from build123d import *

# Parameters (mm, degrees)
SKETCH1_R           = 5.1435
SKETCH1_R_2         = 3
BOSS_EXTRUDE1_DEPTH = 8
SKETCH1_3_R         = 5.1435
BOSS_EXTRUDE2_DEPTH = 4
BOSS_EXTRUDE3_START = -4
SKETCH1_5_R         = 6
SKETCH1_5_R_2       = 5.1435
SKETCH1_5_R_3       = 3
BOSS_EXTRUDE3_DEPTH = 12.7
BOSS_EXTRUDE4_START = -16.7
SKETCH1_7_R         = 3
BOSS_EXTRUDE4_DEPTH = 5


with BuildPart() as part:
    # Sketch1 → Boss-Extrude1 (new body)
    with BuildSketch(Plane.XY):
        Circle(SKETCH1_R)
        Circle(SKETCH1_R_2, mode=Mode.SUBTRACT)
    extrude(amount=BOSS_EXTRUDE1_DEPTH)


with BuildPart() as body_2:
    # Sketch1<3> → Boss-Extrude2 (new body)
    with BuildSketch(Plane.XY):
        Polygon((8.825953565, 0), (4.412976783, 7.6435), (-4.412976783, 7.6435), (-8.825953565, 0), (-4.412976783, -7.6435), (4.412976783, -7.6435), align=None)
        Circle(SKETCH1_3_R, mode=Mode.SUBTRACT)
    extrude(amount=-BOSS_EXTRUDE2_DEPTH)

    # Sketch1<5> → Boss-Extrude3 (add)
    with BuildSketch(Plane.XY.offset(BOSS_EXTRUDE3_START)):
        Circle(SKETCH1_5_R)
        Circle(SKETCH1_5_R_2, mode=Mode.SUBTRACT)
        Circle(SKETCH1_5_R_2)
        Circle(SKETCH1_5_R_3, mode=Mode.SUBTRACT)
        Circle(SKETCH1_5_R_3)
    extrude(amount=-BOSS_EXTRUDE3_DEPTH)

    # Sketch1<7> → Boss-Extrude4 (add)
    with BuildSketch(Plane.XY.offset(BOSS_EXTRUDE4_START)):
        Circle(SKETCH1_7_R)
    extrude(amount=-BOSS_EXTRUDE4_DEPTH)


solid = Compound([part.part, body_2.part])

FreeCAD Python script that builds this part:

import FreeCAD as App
import Part
import Sketcher
from FreeCAD import Vector
Q = App.Units.Quantity

doc = App.newDocument("Part")
body = doc.addObject("PartDesign::Body", "Body")

sketch1 = body.newObject("Sketcher::SketchObject", "Sketch")
sketch1.AttachmentSupport = (doc.getObject("XY_Plane"), [""])
sketch1.MapMode = "FlatFace"
sketch1.addGeometry([
    Part.Circle(Vector(0, 0, 0), Vector(0, 0, 1), 5.1),
    Part.Circle(Vector(0, 0, 0), Vector(0, 0, 1), 3),
], False)
sketch1.addConstraint([
    Sketcher.Constraint("Coincident", 0, 3, -1, 1),
    Sketcher.Constraint("Coincident", 1, 3, -1, 1),
    Sketcher.Constraint("Diameter", 1, 6.0),
    Sketcher.Constraint("Diameter", 0, 10.287),
])
pad1 = body.newObject("PartDesign::Pad", "Pad")
pad1.Profile = sketch1
pad1.Length = 8
body2 = doc.addObject("PartDesign::Body", "Body001")

sketch2 = body2.newObject("Sketcher::SketchObject", "Sketch001")
sketch2.AttachmentSupport = (doc.getObject("XY_Plane001"), [""])
sketch2.MapMode = "FlatFace"
sketch2.addGeometry([
    Part.LineSegment(Vector(9, 0, 0), Vector(4, 8, 0)),
    Part.LineSegment(Vector(4, 8, 0), Vector(-4, 8, 0)),
    Part.LineSegment(Vector(-4, 8, 0), Vector(-9, 0, 0)),
    Part.LineSegment(Vector(-9, 0, 0), Vector(-4, -8, 0)),
    Part.LineSegment(Vector(-4, -8, 0), Vector(4, -8, 0)),
    Part.LineSegment(Vector(4, -8, 0), Vector(9, 0, 0)),
    Part.Circle(Vector(0, 0, 0), Vector(0, 0, 1), 5),
], False)
sketch2.addConstraint([
    Sketcher.Constraint("Coincident", 0, 2, 1, 1),
    Sketcher.Constraint("Coincident", 1, 2, 2, 1),
    Sketcher.Constraint("Coincident", 2, 2, 3, 1),
    Sketcher.Constraint("Coincident", 3, 2, 4, 1),
    Sketcher.Constraint("Coincident", 4, 2, 5, 1),
    Sketcher.Constraint("Coincident", 5, 2, 0, 1),
    Sketcher.Constraint("Horizontal", 1),
    Sketcher.Constraint("Horizontal", 4),
    Sketcher.Constraint("Coincident", 6, 3, -1, 1),
    Sketcher.Constraint("Symmetric", 0, 2, 3, 2, -1, 1),
    Sketcher.Constraint("Symmetric", 2, 2, 5, 2, -1, 1),
    Sketcher.Constraint("PointOnObject", 2, 2, -1),
    Sketcher.Constraint("Parallel", 2, 5),
    Sketcher.Constraint("Vertical", 1, 2, 3, 2),
    Sketcher.Constraint("Angle", 0, Q("120 deg")),
    Sketcher.Constraint("Diameter", 6, 10.287),
    Sketcher.Constraint("DistanceY", 3, 2, 1, 2, 15.287),
    Sketcher.Constraint("DistanceX", 1, 2, 1, 1, 8.825954),
])
pad2 = body2.newObject("PartDesign::Pad", "Pad001")
pad2.Profile = sketch2
pad2.Length = 4
pad2.Reversed = True

sketch3 = body2.newObject("Sketcher::SketchObject", "Sketch002")
sketch3.AttachmentSupport = (doc.getObject("XY_Plane001"), [""])
sketch3.MapMode = "FlatFace"
sketch3.AttachmentOffset = App.Placement(Vector(0, 0, -4), App.Rotation())
sketch3.addGeometry(Part.Circle(Vector(0, 0, 0), Vector(0, 0, 1), 6), False)
sketch3.addConstraint([
    Sketcher.Constraint("Coincident", 0, 3, -1, 1),
    Sketcher.Constraint("Diameter", 0, 12.0),
])
pad3 = body2.newObject("PartDesign::Pad", "Pad002")
pad3.Profile = sketch3
pad3.Length = 12.7
pad3.Reversed = True

sketch4 = body2.newObject("Sketcher::SketchObject", "Sketch003")
sketch4.AttachmentSupport = (doc.getObject("XY_Plane001"), [""])
sketch4.MapMode = "FlatFace"
sketch4.AttachmentOffset = App.Placement(Vector(0, 0, -16.7), App.Rotation())
sketch4.addGeometry(Part.Circle(Vector(0, 0, 0), Vector(0, 0, 1), 3), False)
sketch4.addConstraint([
    Sketcher.Constraint("Coincident", 0, 3, -1, 1),
    Sketcher.Constraint("Diameter", 0, 6.0),
])
pad4 = body2.newObject("PartDesign::Pad", "Pad003")
pad4.Profile = sketch4
pad4.Length = 5
pad4.Reversed = True

doc.recompute()
